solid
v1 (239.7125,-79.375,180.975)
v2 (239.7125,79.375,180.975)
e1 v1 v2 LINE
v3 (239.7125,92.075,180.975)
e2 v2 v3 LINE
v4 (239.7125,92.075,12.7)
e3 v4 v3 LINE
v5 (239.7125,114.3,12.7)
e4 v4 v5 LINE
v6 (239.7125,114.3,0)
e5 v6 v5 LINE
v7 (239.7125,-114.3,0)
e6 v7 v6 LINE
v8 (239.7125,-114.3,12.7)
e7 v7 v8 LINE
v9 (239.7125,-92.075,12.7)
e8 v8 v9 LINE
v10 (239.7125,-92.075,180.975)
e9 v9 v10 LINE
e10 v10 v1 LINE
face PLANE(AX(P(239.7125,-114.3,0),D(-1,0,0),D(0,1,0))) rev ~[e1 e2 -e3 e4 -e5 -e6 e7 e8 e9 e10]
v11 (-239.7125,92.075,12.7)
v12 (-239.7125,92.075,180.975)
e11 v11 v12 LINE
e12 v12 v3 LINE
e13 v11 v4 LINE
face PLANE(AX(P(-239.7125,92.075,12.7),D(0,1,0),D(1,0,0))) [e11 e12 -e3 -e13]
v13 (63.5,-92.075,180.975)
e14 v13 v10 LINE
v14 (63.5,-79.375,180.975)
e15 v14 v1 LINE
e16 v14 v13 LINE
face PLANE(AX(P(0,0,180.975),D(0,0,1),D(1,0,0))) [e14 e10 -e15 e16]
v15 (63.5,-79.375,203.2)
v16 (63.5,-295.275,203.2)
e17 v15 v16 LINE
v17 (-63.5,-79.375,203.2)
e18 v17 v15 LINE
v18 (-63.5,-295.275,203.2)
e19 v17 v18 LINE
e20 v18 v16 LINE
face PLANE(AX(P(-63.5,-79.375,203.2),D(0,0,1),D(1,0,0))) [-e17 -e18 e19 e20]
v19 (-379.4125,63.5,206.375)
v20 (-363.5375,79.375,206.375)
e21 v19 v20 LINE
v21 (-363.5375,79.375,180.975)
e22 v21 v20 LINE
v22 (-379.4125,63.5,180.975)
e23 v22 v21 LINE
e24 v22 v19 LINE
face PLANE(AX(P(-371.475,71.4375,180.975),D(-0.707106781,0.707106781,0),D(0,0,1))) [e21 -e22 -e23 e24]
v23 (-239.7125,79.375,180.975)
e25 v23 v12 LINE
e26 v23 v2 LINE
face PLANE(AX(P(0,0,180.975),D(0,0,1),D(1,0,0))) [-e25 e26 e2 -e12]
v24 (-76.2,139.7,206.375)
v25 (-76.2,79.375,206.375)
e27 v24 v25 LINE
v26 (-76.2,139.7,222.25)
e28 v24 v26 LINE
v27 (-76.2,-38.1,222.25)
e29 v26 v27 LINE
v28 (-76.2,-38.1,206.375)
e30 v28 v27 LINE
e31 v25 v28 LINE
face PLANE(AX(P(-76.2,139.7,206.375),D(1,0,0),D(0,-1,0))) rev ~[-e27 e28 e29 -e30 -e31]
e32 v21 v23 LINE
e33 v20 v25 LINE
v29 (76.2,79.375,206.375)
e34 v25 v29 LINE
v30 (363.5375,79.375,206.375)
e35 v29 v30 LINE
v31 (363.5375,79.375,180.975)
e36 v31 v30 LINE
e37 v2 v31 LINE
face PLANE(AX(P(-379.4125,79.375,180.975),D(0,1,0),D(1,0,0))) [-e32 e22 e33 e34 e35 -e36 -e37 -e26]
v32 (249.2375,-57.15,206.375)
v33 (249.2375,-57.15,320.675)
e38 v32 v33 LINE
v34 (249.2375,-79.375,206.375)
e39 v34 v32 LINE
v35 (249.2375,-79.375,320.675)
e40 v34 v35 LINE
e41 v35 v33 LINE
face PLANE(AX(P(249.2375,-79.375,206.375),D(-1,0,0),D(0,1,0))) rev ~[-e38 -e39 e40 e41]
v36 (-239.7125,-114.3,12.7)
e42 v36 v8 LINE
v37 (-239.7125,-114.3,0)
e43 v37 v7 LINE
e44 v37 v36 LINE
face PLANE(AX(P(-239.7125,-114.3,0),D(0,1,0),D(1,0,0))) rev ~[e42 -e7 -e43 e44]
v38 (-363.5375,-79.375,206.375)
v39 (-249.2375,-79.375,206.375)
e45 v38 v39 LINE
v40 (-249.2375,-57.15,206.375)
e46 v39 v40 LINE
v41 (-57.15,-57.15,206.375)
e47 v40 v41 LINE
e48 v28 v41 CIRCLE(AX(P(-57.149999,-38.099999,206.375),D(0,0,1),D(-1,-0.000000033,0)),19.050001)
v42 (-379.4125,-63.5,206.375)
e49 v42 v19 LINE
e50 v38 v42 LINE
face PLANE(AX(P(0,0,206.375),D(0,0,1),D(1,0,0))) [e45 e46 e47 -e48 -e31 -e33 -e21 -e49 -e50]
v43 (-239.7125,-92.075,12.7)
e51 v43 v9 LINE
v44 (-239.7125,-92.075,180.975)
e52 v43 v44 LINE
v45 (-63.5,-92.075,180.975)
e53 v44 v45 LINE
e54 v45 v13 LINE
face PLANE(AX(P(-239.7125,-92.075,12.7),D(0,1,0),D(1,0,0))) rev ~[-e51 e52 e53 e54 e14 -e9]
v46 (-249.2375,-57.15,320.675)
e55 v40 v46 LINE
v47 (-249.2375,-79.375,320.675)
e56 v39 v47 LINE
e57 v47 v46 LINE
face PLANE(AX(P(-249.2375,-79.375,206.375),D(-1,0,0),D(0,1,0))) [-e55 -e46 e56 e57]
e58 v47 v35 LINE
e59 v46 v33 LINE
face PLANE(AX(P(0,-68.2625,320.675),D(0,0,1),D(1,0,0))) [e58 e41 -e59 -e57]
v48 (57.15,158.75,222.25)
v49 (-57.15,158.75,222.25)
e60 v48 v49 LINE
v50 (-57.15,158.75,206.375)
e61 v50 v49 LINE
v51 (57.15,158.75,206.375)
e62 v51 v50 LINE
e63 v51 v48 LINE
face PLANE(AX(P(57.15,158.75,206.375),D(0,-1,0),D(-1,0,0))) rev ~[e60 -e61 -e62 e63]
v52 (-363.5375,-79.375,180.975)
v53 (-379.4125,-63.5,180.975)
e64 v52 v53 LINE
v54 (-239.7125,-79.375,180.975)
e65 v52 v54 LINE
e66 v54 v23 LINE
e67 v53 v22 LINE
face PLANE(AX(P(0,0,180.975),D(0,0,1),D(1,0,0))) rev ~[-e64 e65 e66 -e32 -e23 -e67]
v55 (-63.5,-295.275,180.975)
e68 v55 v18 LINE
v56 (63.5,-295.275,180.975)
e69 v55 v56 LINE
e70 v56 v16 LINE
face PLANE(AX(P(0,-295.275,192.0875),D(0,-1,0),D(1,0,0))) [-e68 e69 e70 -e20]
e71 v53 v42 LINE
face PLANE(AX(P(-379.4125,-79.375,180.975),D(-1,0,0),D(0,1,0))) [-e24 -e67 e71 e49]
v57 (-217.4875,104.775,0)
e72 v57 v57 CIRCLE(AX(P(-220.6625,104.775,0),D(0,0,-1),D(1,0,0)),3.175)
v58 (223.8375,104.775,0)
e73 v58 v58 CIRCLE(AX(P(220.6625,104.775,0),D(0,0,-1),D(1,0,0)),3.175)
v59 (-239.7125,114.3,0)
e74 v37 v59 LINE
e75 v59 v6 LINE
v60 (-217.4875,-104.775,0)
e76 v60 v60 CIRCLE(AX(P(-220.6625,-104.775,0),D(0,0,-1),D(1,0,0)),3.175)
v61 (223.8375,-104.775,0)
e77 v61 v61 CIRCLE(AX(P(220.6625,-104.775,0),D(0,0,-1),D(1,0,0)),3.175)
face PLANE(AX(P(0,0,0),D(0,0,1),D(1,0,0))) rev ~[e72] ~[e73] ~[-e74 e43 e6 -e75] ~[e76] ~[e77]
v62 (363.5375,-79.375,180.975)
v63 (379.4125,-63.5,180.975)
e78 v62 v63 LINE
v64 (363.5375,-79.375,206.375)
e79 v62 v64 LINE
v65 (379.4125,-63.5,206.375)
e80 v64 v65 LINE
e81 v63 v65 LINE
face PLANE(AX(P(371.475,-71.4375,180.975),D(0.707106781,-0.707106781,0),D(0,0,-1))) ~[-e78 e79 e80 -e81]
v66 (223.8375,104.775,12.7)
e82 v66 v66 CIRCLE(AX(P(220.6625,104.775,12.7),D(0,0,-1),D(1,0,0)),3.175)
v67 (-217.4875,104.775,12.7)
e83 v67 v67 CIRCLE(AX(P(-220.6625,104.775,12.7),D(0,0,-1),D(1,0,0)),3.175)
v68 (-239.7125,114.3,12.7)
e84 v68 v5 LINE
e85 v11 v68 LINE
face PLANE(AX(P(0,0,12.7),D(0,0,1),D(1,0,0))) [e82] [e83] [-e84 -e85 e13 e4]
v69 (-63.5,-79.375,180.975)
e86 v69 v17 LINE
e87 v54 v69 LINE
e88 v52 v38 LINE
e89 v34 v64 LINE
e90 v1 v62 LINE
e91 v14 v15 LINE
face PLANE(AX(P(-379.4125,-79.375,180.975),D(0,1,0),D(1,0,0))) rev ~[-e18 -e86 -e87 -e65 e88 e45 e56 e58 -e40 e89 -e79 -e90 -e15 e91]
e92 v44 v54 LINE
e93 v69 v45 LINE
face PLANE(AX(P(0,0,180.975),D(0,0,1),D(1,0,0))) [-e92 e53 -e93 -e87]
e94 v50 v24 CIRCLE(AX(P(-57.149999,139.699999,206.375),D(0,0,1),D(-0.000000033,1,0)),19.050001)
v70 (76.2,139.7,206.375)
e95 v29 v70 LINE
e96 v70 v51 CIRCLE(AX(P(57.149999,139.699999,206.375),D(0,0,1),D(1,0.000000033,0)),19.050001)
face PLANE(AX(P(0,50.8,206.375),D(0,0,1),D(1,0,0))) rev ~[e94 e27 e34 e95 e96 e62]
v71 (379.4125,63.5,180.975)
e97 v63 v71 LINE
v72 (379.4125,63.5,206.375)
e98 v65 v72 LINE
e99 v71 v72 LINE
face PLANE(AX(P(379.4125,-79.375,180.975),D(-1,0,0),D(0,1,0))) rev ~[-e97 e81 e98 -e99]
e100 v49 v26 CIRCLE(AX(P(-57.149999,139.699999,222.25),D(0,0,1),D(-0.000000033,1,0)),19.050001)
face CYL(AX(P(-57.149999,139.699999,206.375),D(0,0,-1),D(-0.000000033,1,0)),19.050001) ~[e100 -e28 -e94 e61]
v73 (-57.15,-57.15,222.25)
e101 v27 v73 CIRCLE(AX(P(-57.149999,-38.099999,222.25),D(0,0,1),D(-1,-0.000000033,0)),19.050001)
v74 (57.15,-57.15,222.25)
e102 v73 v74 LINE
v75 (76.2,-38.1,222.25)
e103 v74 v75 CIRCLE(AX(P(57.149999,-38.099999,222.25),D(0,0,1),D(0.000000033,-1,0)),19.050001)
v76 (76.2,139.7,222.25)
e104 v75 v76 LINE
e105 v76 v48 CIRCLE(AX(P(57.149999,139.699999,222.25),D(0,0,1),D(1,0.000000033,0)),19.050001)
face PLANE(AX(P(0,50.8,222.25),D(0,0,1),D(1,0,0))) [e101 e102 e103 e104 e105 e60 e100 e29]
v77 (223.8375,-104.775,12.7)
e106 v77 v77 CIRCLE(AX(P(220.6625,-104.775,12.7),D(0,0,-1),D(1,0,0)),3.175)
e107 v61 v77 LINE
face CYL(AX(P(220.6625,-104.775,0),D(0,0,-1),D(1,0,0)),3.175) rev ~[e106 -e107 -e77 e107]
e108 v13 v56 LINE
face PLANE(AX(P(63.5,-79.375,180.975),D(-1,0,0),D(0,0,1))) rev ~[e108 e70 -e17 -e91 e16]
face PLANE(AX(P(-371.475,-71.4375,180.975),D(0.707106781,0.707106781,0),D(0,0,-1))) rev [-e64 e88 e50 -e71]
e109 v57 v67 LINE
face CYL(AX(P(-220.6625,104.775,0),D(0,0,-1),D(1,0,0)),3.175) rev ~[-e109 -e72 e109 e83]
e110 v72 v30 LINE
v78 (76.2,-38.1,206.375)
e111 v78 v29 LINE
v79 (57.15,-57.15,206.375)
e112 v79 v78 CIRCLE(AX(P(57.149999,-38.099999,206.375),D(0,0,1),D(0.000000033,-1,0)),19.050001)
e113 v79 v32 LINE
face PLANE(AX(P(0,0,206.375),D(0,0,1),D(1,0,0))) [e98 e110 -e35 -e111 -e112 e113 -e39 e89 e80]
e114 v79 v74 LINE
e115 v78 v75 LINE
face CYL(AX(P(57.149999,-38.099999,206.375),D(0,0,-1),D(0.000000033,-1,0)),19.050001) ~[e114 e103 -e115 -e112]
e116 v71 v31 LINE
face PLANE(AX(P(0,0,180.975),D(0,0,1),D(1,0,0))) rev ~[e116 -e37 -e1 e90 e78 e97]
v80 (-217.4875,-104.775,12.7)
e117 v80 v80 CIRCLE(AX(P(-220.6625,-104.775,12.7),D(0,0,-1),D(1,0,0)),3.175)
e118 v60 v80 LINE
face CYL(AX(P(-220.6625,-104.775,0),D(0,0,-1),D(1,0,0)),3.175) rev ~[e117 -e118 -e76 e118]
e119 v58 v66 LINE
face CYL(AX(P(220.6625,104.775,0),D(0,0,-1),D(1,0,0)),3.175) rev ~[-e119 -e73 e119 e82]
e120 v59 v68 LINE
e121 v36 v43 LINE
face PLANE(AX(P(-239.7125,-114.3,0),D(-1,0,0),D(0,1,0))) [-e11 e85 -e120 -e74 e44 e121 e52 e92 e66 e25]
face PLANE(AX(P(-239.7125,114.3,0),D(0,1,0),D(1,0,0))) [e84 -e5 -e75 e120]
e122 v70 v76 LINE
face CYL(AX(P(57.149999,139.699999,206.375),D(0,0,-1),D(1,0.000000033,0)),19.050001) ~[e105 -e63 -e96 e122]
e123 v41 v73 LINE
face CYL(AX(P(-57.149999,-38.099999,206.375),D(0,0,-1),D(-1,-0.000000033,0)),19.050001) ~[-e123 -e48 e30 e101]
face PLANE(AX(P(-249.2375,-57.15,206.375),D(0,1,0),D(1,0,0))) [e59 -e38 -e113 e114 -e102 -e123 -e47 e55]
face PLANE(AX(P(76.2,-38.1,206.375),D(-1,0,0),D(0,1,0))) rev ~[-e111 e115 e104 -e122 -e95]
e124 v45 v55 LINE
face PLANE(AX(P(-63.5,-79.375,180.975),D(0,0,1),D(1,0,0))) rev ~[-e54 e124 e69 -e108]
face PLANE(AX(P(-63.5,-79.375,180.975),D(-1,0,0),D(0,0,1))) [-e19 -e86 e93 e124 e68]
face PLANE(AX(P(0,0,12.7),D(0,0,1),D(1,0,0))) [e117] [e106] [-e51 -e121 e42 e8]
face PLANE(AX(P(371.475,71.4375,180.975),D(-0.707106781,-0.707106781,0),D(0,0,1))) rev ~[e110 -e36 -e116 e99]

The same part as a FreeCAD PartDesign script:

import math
import FreeCAD as App
import Part
import Sketcher
Q = App.Units.Quantity


def edges_at(feature, points):
    """Names of the edges that pass closest to the given points."""
    edges = feature.Shape.Edges
    near = lambda p: min(range(len(edges)), key=lambda i: edges[i].distToShape(Part.Vertex(*p))[0])
    return sorted({f"Edge{near(p) + 1}" for p in points})


def add_polygon(sketch, points):
    """Adds a closed chain of lines whose ends are joined by coincident constraints."""
    first, n = sketch.GeometryCount, len(points)
    for a, b in zip(points, points[1:] + points[:1]):
        sketch.addGeometry(Part.LineSegment(App.Vector(*a, 0), App.Vector(*b, 0)), False)
    for i in range(n):
        sketch.addConstraint(Sketcher.Constraint("Coincident", first + i, 2, first + (i + 1) % n, 1))

doc = App.newDocument("Part")
body = doc.addObject("PartDesign::Body", "Body")

# Sketch on XY plane
sketch1 = body.newObject("Sketcher::SketchObject", "Sketch")
sketch1.AttachmentSupport = (doc.getObject("XY_Plane"), [""])
sketch1.MapMode = "FlatFace"
add_polygon(sketch1, [(-240, 114), (-240, -114), (240, -114), (240, 114)])  # lines 0-3
sketch1.addConstraint([
    Sketcher.Constraint("Vertical", 0),
    Sketcher.Constraint("Horizontal", 1),
    Sketcher.Constraint("Vertical", 2),
    Sketcher.Constraint("Horizontal", 3),
    Sketcher.Constraint("Symmetric", 0, 2, 2, 2, -1, 1),
    Sketcher.Constraint("DistanceY", 0, 2, 0, 1, Q("9 in")),
    Sketcher.Constraint("DistanceX", 1, 1, 1, 2, Q("18.875 in")),
])
pad1 = body.newObject("PartDesign::Pad", "Pad")
pad1.Profile = sketch1
pad1.Length = Q("0.5 in")

# Sketch on XY plane
sketch2 = body.newObject("Sketcher::SketchObject", "Sketch001")
sketch2.AttachmentSupport = (doc.getObject("XY_Plane"), [""])
sketch2.MapMode = "FlatFace"
sketch2.addGeometry([
    Part.Circle(App.Vector(220.7, 104.8, 0), App.Vector(0, 0, 1), 3.2),
    Part.Circle(App.Vector(-220.7, 104.8, 0), App.Vector(0, 0, 1), 3.2),
    Part.Circle(App.Vector(220.7, -104.8, 0), App.Vector(0, 0, 1), 3.2),
    Part.Circle(App.Vector(-220.7, -104.8, 0), App.Vector(0, 0, 1), 3.2),
], False)
sketch2.addConstraint([
    Sketcher.Constraint("Equal", 0, 1),
    Sketcher.Constraint("Equal", 1, 2),
    Sketcher.Constraint("Equal", 2, 3),
    Sketcher.Constraint("Symmetric", 1, 3, 2, 3, -1, 1),
    Sketcher.Constraint("Symmetric", 0, 3, 3, 3, -1, 1),
    Sketcher.Constraint("Symmetric", 0, 3, 1, 3, -2),
    Sketcher.Constraint("Diameter", 0, Q("0.25 in")),
    Sketcher.Constraint("DistanceY", 2, 3, 0, 3, Q("8.25 in")),
    Sketcher.Constraint("DistanceX", -1, 1, 0, 3, Q("8.6875 in")),
])
pocket1 = body.newObject("PartDesign::Pocket", "Pocket")
pocket1.Profile = sketch2
pocket1.Type = "ThroughAll"
pocket1.Reversed = True

# Sketch on XY plane
sketch3 = body.newObject("Sketcher::SketchObject", "Sketch002")
sketch3.AttachmentSupport = (doc.getObject("XY_Plane"), [""])
sketch3.MapMode = "FlatFace"
sketch3.AttachmentOffset = App.Placement(App.Vector(0, 0, 0.5 * 25.4), App.Rotation())
add_polygon(sketch3, [(-240, 92), (-240, -92), (240, -92), (240, 92)])  # lines 0-3
sketch3.addConstraint([
    Sketcher.Constraint("Vertical", 0),
    Sketcher.Constraint("Horizontal", 1),
    Sketcher.Constraint("Vertical", 2),
    Sketcher.Constraint("Horizontal", 3),
    Sketcher.Constraint("Symmetric", 0, 2, 2, 2, -1, 1),
    Sketcher.Constraint("DistanceY", 0, 2, 0, 1, Q("7.25 in")),
    Sketcher.Constraint("DistanceX", 1, 1, 1, 2, Q("18.875 in")),
])
pad2 = body.newObject("PartDesign::Pad", "Pad001")
pad2.Profile = sketch3
pad2.Length = Q("6.625 in")

# Sketch on XY plane
sketch4 = body.newObject("Sketcher::SketchObject", "Sketch003")
sketch4.AttachmentSupport = (doc.getObject("XY_Plane"), [""])
sketch4.MapMode = "FlatFace"
sketch4.AttachmentOffset = App.Placement(App.Vector(0, 0, 7.125 * 25.4), App.Rotation())
add_polygon(sketch4, [(-379, 79), (-379, -79), (379, -79), (379, 79)])  # lines 0-3
sketch4.addConstraint([
    Sketcher.Constraint("Vertical", 0),
    Sketcher.Constraint("Horizontal", 1),
    Sketcher.Constraint("Vertical", 2),
    Sketcher.Constraint("Horizontal", 3),
    Sketcher.Constraint("Symmetric", 0, 2, 2, 2, -1, 1),
    Sketcher.Constraint("DistanceY", 0, 2, 0, 1, Q("6.25 in")),
    Sketcher.Constraint("DistanceX", 1, 1, 1, 2, Q("29.875 in")),
])
pad3 = body.newObject("PartDesign::Pad", "Pad002")
pad3.Profile = sketch4
pad3.Length = Q("1 in")

# Sketch on XY plane
sketch5 = body.newObject("Sketcher::SketchObject", "Sketch004")
sketch5.AttachmentSupport = (doc.getObject("XY_Plane"), [""])
sketch5.MapMode = "FlatFace"
sketch5.AttachmentOffset = App.Placement(App.Vector(0, 0, 8.125 * 25.4), App.Rotation())
add_polygon(sketch5, [(-249, -57), (-249, -79), (249, -79), (249, -57)])  # lines 0-3
sketch5.addConstraint([
    Sketcher.Constraint("Vertical", 0),
    Sketcher.Constraint("Horizontal", 1),
    Sketcher.Constraint("Vertical", 2),
    Sketcher.Constraint("Horizontal", 3),
    Sketcher.Constraint("DistanceX", 1, 1, 1, 2, Q("19.625 in")),
    Sketcher.Constraint("DistanceY", 0, 2, 0, 1, Q("0.875 in")),
    Sketcher.Constraint("DistanceY", 2, 2, -1, 1, Q("2.25 in")),
    Sketcher.Constraint("DistanceX", 0, 2, -1, 1, Q("9.8125 in")),
])
pad4 = body.newObject("PartDesign::Pad", "Pad003")
pad4.Profile = sketch5
pad4.Length = Q("4.5 in")

# Sketch on XZ plane
sketch6 = body.newObject("Sketcher::SketchObject", "Sketch005")
sketch6.AttachmentSupport = (doc.getObject("XZ_Plane"), [""])
sketch6.MapMode = "FlatFace"
sketch6.AttachmentOffset = App.Placement(App.Vector(0, 0, 3.125 * 25.4), App.Rotation())
add_polygon(sketch6, [(-64, 203), (-64, 181), (64, 181), (64, 203)])  # lines 0-3
sketch6.addConstraint([
    Sketcher.Constraint("Vertical", 0),
    Sketcher.Constraint("Horizontal", 1),
    Sketcher.Constraint("Vertical", 2),
    Sketcher.Constraint("Horizontal", 3),
    Sketcher.Constraint("DistanceX", 1, 1, 1, 2, Q("5 in")),
    Sketcher.Constraint("DistanceY", -1, 1, 2, 2, Q("8 in")),
    Sketcher.Constraint("DistanceX", 0, 2, -1, 1, Q("2.5 in")),
    Sketcher.Constraint("DistanceY", 0, 2, 0, 1, Q("0.875 in")),
])
pad5 = body.newObject("PartDesign::Pad", "Pad004")
pad5.Profile = sketch6
pad5.Length = Q("8.5 in")
doc.recompute()

chamfer = body.newObject("PartDesign::Chamfer", "Chamfer")
chamfer.Base = (pad5, edges_at(pad5, [
    (-379.413, 79.375, 193.675),
    (-379.413, -79.375, 193.675),
    (379.413, -79.375, 193.675),
    (379.413, 79.375, 193.675),
]))
chamfer.Size = Q("0.625 in")

# Sketch on XY plane
sketch7 = body.newObject("Sketcher::SketchObject", "Sketch006")
sketch7.AttachmentSupport = (doc.getObject("XY_Plane"), [""])
sketch7.MapMode = "FlatFace"
sketch7.AttachmentOffset = App.Placement(App.Vector(0, 0, 8.125 * 25.4), App.Rotation())
sketch7.addGeometry([
    Part.ArcOfCircle(Part.Circle(App.Vector(-57, -38, 0), App.Vector(0, 0, 1), 19), math.radians(-180), math.radians(-90)),  # 0
    Part.LineSegment(App.Vector(-57, -57, 0), App.Vector(57, -57, 0)),  # 1
    Part.ArcOfCircle(Part.Circle(App.Vector(57, -38, 0), App.Vector(0, 0, 1), 19), math.radians(-90), math.radians(0)),  # 2
    Part.LineSegment(App.Vector(76, -38, 0), App.Vector(76, 140, 0)),  # 3
    Part.ArcOfCircle(Part.Circle(App.Vector(57, 140, 0), App.Vector(0, 0, 1), 19), math.radians(0), math.radians(90)),  # 4
    Part.LineSegment(App.Vector(57, 159, 0), App.Vector(-57, 159, 0)),  # 5
    Part.ArcOfCircle(Part.Circle(App.Vector(-57, 140, 0), App.Vector(0, 0, 1), 19), math.radians(90), math.radians(180)),  # 6
    Part.LineSegment(App.Vector(-76, 140, 0), App.Vector(-76, -38, 0)),  # 7
], False)
sketch7.addConstraint([
    Sketcher.Constraint("Tangent", 0, 2, 1, 1),
    Sketcher.Constraint("Tangent", 1, 2, 2, 1),
    Sketcher.Constraint("Tangent", 2, 2, 3, 1),
    Sketcher.Constraint("Tangent", 3, 2, 4, 1),
    Sketcher.Constraint("Tangent", 4, 2, 5, 1),
    Sketcher.Constraint("Tangent", 5, 2, 6, 1),
    Sketcher.Constraint("Tangent", 6, 2, 7, 1),
    Sketcher.Constraint("Tangent", 7, 2, 0, 1),
    Sketcher.Constraint("Horizontal", 1),
    Sketcher.Constraint("Vertical", 3),
    Sketcher.Constraint("Horizontal", 5),
    Sketcher.Constraint("Vertical", 7),
    Sketcher.Constraint("Equal", 0, 2),
    Sketcher.Constraint("Equal", 2, 4),
    Sketcher.Constraint("Equal", 4, 6),
    Sketcher.Constraint("DistanceY", 3, 1, 3, 2, Q("7 in")),
    Sketcher.Constraint("Radius", 0, Q("0.75 in")),
    Sketcher.Constraint("DistanceX", 1, 1, 1, 2, Q("4.5 in")),
    Sketcher.Constraint("DistanceX", -1, 1, 2, 2, Q("3 in")),
    Sketcher.Constraint("DistanceY", 0, 3, -1, 1, Q("1.5 in")),
])
pad6 = body.newObject("PartDesign::Pad", "Pad005")
pad6.Profile = sketch7
pad6.Length = Q("0.625 in")

doc.recompute()
